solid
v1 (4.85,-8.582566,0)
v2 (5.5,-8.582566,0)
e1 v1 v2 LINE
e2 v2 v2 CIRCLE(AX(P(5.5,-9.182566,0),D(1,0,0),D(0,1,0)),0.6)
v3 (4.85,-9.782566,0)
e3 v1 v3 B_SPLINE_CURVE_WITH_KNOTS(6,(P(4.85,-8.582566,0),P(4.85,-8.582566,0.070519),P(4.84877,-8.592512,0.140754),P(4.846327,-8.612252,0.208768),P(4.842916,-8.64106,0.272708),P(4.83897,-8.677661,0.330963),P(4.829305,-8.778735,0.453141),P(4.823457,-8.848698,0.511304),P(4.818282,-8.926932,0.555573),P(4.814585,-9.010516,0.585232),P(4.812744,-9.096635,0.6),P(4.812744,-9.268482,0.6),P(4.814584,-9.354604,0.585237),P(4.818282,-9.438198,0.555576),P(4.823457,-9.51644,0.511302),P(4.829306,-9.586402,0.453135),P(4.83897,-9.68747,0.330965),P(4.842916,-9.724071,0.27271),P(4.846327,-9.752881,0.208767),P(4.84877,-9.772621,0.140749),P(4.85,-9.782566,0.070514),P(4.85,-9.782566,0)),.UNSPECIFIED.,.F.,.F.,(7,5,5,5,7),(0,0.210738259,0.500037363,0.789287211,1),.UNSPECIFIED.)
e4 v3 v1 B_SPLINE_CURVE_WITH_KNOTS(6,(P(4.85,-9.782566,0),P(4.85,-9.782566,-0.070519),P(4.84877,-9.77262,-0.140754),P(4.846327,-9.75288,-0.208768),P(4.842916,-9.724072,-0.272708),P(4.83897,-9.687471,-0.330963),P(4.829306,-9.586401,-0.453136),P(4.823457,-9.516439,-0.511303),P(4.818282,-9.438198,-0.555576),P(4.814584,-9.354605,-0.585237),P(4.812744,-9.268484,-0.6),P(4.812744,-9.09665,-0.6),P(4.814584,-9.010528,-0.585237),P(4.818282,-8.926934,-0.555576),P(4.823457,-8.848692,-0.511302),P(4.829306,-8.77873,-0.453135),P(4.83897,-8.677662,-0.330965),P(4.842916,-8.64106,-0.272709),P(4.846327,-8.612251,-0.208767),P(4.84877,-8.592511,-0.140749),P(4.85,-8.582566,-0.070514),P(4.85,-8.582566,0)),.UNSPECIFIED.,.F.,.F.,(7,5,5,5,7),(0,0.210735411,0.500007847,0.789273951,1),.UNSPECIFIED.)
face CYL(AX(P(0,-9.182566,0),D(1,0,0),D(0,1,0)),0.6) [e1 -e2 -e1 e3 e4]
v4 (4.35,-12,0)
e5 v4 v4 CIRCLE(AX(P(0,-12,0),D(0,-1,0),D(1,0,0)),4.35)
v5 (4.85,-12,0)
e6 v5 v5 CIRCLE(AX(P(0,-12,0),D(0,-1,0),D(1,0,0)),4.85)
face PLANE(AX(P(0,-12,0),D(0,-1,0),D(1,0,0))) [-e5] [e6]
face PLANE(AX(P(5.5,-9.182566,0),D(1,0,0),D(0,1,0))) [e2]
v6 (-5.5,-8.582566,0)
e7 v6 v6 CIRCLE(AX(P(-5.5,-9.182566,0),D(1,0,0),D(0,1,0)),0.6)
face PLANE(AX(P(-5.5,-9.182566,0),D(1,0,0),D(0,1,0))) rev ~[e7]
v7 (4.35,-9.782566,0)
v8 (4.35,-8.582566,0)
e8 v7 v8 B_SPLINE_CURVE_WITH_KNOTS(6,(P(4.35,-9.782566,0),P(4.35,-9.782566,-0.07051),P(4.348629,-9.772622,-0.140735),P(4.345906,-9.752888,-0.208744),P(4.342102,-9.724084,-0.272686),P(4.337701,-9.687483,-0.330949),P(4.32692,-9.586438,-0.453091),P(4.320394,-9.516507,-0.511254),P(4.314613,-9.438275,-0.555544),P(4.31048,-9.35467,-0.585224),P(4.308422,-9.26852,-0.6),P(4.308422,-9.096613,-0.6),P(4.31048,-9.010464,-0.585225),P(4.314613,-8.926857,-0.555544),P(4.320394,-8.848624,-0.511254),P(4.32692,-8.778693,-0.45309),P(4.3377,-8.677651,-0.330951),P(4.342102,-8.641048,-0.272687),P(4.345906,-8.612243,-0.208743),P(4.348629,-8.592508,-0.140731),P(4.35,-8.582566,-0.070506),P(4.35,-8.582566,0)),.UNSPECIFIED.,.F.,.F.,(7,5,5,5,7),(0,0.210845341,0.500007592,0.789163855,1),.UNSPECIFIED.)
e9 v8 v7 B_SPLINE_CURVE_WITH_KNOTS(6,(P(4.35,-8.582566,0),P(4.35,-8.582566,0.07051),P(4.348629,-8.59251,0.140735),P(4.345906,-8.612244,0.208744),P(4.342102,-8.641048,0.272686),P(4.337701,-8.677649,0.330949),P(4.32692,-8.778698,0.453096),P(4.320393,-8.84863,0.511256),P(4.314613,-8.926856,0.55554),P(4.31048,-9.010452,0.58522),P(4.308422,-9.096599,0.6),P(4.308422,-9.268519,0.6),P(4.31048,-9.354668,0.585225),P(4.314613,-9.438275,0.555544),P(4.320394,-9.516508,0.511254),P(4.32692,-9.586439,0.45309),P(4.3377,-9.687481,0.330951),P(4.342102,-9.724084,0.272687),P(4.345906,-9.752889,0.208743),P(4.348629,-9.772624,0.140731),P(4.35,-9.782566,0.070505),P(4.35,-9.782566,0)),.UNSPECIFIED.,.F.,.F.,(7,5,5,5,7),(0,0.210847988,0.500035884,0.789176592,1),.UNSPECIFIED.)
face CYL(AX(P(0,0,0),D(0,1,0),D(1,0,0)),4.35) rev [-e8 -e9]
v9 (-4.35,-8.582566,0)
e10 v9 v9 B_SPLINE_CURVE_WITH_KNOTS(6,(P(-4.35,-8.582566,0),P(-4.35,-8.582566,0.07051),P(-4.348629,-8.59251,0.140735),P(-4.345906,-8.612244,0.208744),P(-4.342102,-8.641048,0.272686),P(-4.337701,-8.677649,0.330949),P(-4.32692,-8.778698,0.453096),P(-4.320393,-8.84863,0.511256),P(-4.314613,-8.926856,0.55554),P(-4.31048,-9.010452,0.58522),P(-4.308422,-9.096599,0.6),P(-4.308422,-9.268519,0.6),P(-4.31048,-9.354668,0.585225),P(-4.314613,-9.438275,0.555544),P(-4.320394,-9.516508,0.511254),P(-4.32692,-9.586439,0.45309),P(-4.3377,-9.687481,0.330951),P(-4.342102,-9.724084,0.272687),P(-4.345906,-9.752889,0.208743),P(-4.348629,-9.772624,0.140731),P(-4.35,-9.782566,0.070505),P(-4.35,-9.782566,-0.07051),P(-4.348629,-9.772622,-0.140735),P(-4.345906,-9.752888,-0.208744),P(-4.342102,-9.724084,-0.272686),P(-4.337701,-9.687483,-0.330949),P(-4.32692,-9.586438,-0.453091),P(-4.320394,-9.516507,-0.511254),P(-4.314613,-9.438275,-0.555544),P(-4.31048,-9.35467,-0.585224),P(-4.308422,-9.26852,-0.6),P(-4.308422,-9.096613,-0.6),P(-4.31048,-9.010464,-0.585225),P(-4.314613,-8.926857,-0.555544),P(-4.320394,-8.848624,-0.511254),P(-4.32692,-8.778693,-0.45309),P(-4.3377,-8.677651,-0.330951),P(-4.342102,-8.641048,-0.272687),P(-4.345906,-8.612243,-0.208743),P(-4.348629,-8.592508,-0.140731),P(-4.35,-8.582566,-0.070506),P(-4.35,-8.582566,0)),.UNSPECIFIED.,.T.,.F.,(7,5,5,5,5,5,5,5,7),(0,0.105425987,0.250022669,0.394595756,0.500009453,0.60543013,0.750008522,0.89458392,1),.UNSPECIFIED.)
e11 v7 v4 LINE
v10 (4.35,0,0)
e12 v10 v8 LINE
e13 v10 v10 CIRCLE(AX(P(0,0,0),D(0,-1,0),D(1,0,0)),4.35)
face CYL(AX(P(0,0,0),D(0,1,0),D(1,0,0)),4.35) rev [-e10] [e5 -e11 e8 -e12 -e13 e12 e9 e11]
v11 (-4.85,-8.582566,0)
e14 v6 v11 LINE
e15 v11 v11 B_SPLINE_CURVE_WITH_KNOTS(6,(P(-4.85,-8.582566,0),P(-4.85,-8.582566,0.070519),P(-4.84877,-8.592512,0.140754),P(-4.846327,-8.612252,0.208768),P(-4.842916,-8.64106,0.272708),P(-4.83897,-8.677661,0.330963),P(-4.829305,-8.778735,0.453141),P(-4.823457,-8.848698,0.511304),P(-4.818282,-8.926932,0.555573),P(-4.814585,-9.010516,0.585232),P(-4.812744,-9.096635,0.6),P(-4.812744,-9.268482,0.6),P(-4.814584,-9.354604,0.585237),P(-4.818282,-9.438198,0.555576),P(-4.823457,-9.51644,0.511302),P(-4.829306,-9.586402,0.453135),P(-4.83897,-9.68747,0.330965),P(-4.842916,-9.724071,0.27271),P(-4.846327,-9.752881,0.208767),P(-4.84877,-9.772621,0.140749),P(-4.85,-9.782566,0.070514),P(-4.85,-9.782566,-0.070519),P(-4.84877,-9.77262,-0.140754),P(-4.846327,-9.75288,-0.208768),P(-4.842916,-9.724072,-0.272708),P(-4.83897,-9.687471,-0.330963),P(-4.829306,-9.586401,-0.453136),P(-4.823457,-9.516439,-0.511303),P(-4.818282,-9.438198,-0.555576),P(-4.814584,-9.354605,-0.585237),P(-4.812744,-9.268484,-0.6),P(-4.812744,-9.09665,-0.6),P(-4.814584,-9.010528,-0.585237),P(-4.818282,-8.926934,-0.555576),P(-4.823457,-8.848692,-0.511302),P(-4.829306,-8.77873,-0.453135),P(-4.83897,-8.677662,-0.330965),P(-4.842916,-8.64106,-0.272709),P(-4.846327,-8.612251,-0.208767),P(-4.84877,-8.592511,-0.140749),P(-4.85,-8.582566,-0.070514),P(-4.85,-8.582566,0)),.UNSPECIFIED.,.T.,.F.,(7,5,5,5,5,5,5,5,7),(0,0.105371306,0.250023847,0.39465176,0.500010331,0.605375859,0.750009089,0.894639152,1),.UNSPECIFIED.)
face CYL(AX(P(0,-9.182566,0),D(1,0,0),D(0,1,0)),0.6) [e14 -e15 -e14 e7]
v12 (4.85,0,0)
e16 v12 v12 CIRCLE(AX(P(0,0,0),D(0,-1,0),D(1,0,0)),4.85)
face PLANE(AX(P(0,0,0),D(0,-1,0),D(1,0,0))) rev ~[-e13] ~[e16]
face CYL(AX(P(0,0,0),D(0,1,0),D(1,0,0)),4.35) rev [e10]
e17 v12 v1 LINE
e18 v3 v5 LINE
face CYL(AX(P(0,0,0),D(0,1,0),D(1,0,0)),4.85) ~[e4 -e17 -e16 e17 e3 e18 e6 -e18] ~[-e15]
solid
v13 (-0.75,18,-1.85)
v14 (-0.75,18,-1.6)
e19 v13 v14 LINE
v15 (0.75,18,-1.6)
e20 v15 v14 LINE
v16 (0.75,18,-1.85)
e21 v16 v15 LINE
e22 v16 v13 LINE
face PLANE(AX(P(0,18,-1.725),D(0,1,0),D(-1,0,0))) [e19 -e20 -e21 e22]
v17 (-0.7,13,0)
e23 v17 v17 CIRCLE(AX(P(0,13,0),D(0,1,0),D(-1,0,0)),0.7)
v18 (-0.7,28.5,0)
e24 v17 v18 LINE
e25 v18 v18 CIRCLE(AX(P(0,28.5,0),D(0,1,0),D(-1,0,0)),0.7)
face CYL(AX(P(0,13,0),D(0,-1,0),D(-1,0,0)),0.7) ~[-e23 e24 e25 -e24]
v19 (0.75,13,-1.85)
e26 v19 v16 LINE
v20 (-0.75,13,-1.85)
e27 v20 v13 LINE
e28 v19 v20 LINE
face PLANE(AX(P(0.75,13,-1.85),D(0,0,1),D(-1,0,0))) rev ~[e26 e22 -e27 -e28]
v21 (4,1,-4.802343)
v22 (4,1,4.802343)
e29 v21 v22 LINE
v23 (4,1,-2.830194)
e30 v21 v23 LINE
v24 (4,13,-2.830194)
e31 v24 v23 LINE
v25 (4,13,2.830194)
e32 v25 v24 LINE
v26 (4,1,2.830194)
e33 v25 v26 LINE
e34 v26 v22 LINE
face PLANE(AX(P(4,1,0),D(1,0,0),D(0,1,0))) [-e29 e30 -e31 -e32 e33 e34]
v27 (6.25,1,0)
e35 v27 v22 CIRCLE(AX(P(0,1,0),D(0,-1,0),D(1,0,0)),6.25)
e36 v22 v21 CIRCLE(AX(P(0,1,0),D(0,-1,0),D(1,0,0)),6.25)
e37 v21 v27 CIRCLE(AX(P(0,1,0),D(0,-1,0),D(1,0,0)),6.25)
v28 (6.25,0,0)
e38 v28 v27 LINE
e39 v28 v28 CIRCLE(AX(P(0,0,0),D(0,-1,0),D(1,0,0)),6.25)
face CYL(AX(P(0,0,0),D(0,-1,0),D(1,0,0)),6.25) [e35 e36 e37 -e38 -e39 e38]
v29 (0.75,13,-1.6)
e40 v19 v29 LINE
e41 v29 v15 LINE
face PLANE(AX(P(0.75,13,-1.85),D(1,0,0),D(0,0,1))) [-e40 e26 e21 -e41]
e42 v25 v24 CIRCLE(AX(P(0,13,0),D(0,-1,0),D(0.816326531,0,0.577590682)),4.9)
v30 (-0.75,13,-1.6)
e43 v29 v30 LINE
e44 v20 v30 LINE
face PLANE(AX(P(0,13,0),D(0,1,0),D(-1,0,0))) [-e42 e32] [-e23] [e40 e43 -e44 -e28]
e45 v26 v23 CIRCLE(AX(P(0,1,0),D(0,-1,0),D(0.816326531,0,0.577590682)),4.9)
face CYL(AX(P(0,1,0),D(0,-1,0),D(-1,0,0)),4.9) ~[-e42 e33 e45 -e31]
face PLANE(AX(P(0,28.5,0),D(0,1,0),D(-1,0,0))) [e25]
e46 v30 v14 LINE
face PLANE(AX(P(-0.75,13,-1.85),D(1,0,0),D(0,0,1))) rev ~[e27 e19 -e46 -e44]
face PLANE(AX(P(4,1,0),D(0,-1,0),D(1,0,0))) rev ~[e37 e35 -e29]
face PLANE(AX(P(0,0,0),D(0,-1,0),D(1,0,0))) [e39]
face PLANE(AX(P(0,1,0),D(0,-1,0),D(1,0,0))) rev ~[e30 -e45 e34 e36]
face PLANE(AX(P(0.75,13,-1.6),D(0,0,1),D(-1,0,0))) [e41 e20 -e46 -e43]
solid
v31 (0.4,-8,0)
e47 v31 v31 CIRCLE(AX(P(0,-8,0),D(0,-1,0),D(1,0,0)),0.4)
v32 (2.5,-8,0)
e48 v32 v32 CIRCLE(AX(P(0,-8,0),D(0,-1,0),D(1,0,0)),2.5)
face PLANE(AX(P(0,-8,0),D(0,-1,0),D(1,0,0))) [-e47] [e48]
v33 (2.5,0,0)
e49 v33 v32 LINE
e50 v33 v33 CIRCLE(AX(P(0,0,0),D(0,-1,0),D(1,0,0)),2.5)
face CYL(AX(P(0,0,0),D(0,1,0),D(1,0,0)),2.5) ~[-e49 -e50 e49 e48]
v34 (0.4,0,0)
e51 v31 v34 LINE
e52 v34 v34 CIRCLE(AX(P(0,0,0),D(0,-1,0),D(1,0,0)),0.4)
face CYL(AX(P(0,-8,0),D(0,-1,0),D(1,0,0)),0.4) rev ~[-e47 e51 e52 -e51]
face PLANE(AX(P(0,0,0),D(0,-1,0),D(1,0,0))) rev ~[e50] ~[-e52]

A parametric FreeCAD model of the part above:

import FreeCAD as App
import Part
import Sketcher
Q = App.Units.Quantity


def add_polygon(sketch, points):
    """Adds a closed chain of lines whose ends are joined by coincident constraints."""
    first, n = sketch.GeometryCount, len(points)
    for a, b in zip(points, points[1:] + points[:1]):
        sketch.addGeometry(Part.LineSegment(App.Vector(*a, 0), App.Vector(*b, 0)), False)
    for i in range(n):
        sketch.addConstraint(Sketcher.Constraint("Coincident", first + i, 2, first + (i + 1) % n, 1))

doc = App.newDocument("Part")
body = doc.addObject("PartDesign::Body", "Body")

# Sketch on XZ plane
sketch1 = body.newObject("Sketcher::SketchObject", "Sketch")
sketch1.AttachmentSupport = (doc.getObject("XZ_Plane"), [""])
sketch1.MapMode = "FlatFace"
sketch1.addGeometry([
    Part.Circle(App.Vector(0, 0, 0), App.Vector(0, 0, 1), 4.85),
    Part.Circle(App.Vector(0, 0, 0), App.Vector(0, 0, 1), 4.35),
], False)
sketch1.addConstraint([
    Sketcher.Constraint("Coincident", 0, 3, -1, 1),
    Sketcher.Constraint("Coincident", 1, 3, -1, 1),
    Sketcher.Constraint("Diameter", 0, Q("9.7 mm")),
    Sketcher.Constraint("Diameter", 1, Q("8.7 mm")),
])
pad1 = body.newObject("PartDesign::Pad", "Pad")
pad1.Profile = sketch1
pad1.Length = 12

# Sketch on YZ plane
sketch2 = body.newObject("Sketcher::SketchObject", "Sketch001")
sketch2.AttachmentSupport = (doc.getObject("YZ_Plane"), [""])
sketch2.MapMode = "FlatFace"
sketch2.addGeometry(Part.Circle(App.Vector(-9.182566, 0, 0), App.Vector(0, 0, 1), 0.6), False)
sketch2.addConstraint([
    Sketcher.Constraint("PointOnObject", 0, 3, -1),
    Sketcher.Constraint("Diameter", 0, Q("1.2 mm")),
    Sketcher.Constraint("DistanceX", 0, 3, -1, 1, Q("9.182566 mm")),
])
pad2 = body.newObject("PartDesign::Pad", "Pad001")
pad2.Profile = sketch2
pad2.Length = 11
pad2.Midplane = True

# Sketch on XZ plane
sketch3 = body.newObject("Sketcher::SketchObject", "Sketch002")
sketch3.AttachmentSupport = (doc.getObject("XZ_Plane"), [""])
sketch3.MapMode = "FlatFace"
sketch3.addGeometry(Part.Circle(App.Vector(0, 0, 0), App.Vector(0, 0, 1), 4.35), False)
sketch3.addConstraint([
    Sketcher.Constraint("Coincident", 0, 3, -1, 1),
    Sketcher.Constraint("Diameter", 0, Q("8.7 mm")),
])
pocket1 = body.newObject("PartDesign::Pocket", "Pocket")
pocket1.Profile = sketch3
pocket1.Length = 25
pocket1.Reversed = True
body2 = doc.addObject("PartDesign::Body", "Body001")

# Sketch on XZ plane
sketch4 = body2.newObject("Sketcher::SketchObject", "Sketch003")
sketch4.AttachmentSupport = (doc.getObject("XZ_Plane001"), [""])
sketch4.MapMode = "FlatFace"
sketch4.addGeometry(Part.Circle(App.Vector(0, 0, 0), App.Vector(0, 0, 1), 2.5), False)
sketch4.addConstraint([
    Sketcher.Constraint("Coincident", 0, 3, -1, 1),
    Sketcher.Constraint("Diameter", 0, Q("5 mm")),
])
pad3 = body2.newObject("PartDesign::Pad", "Pad002")
pad3.Profile = sketch4
pad3.Length = 8

# Sketch on XZ plane
sketch5 = body2.newObject("Sketcher::SketchObject", "Sketch004")
sketch5.AttachmentSupport = (doc.getObject("XZ_Plane001"), [""])
sketch5.MapMode = "FlatFace"
sketch5.AttachmentOffset = App.Placement(App.Vector(0, 0, 8), App.Rotation())
sketch5.addGeometry(Part.Circle(App.Vector(0, 0, 0), App.Vector(0, 0, 1), 0.4), False)
sketch5.addConstraint([
    Sketcher.Constraint("Coincident", 0, 3, -1, 1),
    Sketcher.Constraint("Diameter", 0, Q("0.8 mm")),
])
pocket2 = body2.newObject("PartDesign::Pocket", "Pocket001")
pocket2.Profile = sketch5
pocket2.Length = 25
body3 = doc.addObject("PartDesign::Body", "Body002")

# Sketch on XZ plane
sketch6 = body3.newObject("Sketcher::SketchObject", "Sketch005")
sketch6.AttachmentSupport = (doc.getObject("XZ_Plane002"), [""])
sketch6.MapMode = "FlatFace"
sketch6.addGeometry(Part.Circle(App.Vector(0, 0, 0), App.Vector(0, 0, 1), 6.25), False)
sketch6.addConstraint([
    Sketcher.Constraint("Coincident", 0, 3, -1, 1),
    Sketcher.Constraint("Diameter", 0, Q("12.5 mm")),
])
pad4 = body3.newObject("PartDesign::Pad", "Pad003")
pad4.Profile = sketch6
pad4.Length = 1
pad4.Reversed = True

# Sketch on XZ plane
sketch7 = body3.newObject("Sketcher::SketchObject", "Sketch006")
sketch7.AttachmentSupport = (doc.getObject("XZ_Plane002"), [""])
sketch7.MapMode = "FlatFace"
sketch7.AttachmentOffset = App.Placement(App.Vector(0, 0, -1), App.Rotation())
sketch7.addGeometry(Part.Circle(App.Vector(0, 0, 0), App.Vector(0, 0, 1), 4.9), False)
sketch7.addConstraint([
    Sketcher.Constraint("Coincident", 0, 3, -1, 1),
    Sketcher.Constraint("Diameter", 0, Q("9.8 mm")),
])
pad5 = body3.newObject("PartDesign::Pad", "Pad004")
pad5.Profile = sketch7
pad5.Length = 12
pad5.Reversed = True

# Sketch on XZ plane
sketch8 = body3.newObject("Sketcher::SketchObject", "Sketch007")
sketch8.AttachmentSupport = (doc.getObject("XZ_Plane002"), [""])
sketch8.MapMode = "FlatFace"
sketch8.AttachmentOffset = App.Placement(App.Vector(0, 0, -13), App.Rotation())
sketch8.addGeometry(Part.Circle(App.Vector(0, 0, 0), App.Vector(0, 0, 1), 0.7), False)
sketch8.addConstraint([
    Sketcher.Constraint("Coincident", 0, 3, -1, 1),
    Sketcher.Constraint("Diameter", 0, Q("1.4 mm")),
])
pad6 = body3.newObject("PartDesign::Pad", "Pad005")
pad6.Profile = sketch8
pad6.Length = 15.5
pad6.Reversed = True

# Sketch on XZ plane
sketch9 = body3.newObject("Sketcher::SketchObject", "Sketch008")
sketch9.AttachmentSupport = (doc.getObject("XZ_Plane002"), [""])
sketch9.MapMode = "FlatFace"
sketch9.AttachmentOffset = App.Placement(App.Vector(0, 0, -13), App.Rotation())
add_polygon(sketch9, [(0.75, -1.6), (0.75, -1.85), (-0.75, -1.85), (-0.75, -1.6)])  # lines 0-3
sketch9.addConstraint([
    Sketcher.Constraint("Vertical", 0),
    Sketcher.Constraint("Horizontal", 1),
    Sketcher.Constraint("Vertical", 2),
    Sketcher.Constraint("Horizontal", 3),
    Sketcher.Constraint("DistanceX", 1, 2, 1, 1, Q("1.5 mm")),
    Sketcher.Constraint("DistanceY", 0, 2, 0, 1, Q("0.25 mm")),
    Sketcher.Constraint("DistanceY", 2, 2, -1, 1, Q("1.6 mm")),
    Sketcher.Constraint("DistanceX", -1, 1, 0, 2, Q("0.75 mm")),
])
pad7 = body3.newObject("PartDesign::Pad", "Pad006")
pad7.Profile = sketch9
pad7.Length = 5
pad7.Reversed = True

# Sketch on XY plane
sketch10 = body3.newObject("Sketcher::SketchObject", "Sketch009")
sketch10.AttachmentSupport = (doc.getObject("XY_Plane002"), [""])
sketch10.MapMode = "FlatFace"
add_polygon(sketch10, [(4, 15.420372), (4, 1), (7.95316, 1), (7.95316, 15.420372)])  # lines 0-3
sketch10.addConstraint([
    Sketcher.Constraint("Vertical", 0),
    Sketcher.Constraint("Horizontal", 1),
    Sketcher.Constraint("Vertical", 2),
    Sketcher.Constraint("Horizontal", 3),
    Sketcher.Constraint("DistanceX", -1, 1, 0, 2, Q("4 mm")),
    Sketcher.Constraint("DistanceY", -1, 1, 0, 2, Q("1 mm")),
    Sketcher.Constraint("DistanceX", 1, 1, 1, 2, Q("3.95316 mm")),
    Sketcher.Constraint("DistanceY", 0, 2, 0, 1, Q("14.420373 mm")),
])
pocket3 = body3.newObject("PartDesign::Pocket", "Pocket002")
pocket3.Profile = sketch10
pocket3.Length = 25
pocket3.Midplane = True

doc.recompute()
